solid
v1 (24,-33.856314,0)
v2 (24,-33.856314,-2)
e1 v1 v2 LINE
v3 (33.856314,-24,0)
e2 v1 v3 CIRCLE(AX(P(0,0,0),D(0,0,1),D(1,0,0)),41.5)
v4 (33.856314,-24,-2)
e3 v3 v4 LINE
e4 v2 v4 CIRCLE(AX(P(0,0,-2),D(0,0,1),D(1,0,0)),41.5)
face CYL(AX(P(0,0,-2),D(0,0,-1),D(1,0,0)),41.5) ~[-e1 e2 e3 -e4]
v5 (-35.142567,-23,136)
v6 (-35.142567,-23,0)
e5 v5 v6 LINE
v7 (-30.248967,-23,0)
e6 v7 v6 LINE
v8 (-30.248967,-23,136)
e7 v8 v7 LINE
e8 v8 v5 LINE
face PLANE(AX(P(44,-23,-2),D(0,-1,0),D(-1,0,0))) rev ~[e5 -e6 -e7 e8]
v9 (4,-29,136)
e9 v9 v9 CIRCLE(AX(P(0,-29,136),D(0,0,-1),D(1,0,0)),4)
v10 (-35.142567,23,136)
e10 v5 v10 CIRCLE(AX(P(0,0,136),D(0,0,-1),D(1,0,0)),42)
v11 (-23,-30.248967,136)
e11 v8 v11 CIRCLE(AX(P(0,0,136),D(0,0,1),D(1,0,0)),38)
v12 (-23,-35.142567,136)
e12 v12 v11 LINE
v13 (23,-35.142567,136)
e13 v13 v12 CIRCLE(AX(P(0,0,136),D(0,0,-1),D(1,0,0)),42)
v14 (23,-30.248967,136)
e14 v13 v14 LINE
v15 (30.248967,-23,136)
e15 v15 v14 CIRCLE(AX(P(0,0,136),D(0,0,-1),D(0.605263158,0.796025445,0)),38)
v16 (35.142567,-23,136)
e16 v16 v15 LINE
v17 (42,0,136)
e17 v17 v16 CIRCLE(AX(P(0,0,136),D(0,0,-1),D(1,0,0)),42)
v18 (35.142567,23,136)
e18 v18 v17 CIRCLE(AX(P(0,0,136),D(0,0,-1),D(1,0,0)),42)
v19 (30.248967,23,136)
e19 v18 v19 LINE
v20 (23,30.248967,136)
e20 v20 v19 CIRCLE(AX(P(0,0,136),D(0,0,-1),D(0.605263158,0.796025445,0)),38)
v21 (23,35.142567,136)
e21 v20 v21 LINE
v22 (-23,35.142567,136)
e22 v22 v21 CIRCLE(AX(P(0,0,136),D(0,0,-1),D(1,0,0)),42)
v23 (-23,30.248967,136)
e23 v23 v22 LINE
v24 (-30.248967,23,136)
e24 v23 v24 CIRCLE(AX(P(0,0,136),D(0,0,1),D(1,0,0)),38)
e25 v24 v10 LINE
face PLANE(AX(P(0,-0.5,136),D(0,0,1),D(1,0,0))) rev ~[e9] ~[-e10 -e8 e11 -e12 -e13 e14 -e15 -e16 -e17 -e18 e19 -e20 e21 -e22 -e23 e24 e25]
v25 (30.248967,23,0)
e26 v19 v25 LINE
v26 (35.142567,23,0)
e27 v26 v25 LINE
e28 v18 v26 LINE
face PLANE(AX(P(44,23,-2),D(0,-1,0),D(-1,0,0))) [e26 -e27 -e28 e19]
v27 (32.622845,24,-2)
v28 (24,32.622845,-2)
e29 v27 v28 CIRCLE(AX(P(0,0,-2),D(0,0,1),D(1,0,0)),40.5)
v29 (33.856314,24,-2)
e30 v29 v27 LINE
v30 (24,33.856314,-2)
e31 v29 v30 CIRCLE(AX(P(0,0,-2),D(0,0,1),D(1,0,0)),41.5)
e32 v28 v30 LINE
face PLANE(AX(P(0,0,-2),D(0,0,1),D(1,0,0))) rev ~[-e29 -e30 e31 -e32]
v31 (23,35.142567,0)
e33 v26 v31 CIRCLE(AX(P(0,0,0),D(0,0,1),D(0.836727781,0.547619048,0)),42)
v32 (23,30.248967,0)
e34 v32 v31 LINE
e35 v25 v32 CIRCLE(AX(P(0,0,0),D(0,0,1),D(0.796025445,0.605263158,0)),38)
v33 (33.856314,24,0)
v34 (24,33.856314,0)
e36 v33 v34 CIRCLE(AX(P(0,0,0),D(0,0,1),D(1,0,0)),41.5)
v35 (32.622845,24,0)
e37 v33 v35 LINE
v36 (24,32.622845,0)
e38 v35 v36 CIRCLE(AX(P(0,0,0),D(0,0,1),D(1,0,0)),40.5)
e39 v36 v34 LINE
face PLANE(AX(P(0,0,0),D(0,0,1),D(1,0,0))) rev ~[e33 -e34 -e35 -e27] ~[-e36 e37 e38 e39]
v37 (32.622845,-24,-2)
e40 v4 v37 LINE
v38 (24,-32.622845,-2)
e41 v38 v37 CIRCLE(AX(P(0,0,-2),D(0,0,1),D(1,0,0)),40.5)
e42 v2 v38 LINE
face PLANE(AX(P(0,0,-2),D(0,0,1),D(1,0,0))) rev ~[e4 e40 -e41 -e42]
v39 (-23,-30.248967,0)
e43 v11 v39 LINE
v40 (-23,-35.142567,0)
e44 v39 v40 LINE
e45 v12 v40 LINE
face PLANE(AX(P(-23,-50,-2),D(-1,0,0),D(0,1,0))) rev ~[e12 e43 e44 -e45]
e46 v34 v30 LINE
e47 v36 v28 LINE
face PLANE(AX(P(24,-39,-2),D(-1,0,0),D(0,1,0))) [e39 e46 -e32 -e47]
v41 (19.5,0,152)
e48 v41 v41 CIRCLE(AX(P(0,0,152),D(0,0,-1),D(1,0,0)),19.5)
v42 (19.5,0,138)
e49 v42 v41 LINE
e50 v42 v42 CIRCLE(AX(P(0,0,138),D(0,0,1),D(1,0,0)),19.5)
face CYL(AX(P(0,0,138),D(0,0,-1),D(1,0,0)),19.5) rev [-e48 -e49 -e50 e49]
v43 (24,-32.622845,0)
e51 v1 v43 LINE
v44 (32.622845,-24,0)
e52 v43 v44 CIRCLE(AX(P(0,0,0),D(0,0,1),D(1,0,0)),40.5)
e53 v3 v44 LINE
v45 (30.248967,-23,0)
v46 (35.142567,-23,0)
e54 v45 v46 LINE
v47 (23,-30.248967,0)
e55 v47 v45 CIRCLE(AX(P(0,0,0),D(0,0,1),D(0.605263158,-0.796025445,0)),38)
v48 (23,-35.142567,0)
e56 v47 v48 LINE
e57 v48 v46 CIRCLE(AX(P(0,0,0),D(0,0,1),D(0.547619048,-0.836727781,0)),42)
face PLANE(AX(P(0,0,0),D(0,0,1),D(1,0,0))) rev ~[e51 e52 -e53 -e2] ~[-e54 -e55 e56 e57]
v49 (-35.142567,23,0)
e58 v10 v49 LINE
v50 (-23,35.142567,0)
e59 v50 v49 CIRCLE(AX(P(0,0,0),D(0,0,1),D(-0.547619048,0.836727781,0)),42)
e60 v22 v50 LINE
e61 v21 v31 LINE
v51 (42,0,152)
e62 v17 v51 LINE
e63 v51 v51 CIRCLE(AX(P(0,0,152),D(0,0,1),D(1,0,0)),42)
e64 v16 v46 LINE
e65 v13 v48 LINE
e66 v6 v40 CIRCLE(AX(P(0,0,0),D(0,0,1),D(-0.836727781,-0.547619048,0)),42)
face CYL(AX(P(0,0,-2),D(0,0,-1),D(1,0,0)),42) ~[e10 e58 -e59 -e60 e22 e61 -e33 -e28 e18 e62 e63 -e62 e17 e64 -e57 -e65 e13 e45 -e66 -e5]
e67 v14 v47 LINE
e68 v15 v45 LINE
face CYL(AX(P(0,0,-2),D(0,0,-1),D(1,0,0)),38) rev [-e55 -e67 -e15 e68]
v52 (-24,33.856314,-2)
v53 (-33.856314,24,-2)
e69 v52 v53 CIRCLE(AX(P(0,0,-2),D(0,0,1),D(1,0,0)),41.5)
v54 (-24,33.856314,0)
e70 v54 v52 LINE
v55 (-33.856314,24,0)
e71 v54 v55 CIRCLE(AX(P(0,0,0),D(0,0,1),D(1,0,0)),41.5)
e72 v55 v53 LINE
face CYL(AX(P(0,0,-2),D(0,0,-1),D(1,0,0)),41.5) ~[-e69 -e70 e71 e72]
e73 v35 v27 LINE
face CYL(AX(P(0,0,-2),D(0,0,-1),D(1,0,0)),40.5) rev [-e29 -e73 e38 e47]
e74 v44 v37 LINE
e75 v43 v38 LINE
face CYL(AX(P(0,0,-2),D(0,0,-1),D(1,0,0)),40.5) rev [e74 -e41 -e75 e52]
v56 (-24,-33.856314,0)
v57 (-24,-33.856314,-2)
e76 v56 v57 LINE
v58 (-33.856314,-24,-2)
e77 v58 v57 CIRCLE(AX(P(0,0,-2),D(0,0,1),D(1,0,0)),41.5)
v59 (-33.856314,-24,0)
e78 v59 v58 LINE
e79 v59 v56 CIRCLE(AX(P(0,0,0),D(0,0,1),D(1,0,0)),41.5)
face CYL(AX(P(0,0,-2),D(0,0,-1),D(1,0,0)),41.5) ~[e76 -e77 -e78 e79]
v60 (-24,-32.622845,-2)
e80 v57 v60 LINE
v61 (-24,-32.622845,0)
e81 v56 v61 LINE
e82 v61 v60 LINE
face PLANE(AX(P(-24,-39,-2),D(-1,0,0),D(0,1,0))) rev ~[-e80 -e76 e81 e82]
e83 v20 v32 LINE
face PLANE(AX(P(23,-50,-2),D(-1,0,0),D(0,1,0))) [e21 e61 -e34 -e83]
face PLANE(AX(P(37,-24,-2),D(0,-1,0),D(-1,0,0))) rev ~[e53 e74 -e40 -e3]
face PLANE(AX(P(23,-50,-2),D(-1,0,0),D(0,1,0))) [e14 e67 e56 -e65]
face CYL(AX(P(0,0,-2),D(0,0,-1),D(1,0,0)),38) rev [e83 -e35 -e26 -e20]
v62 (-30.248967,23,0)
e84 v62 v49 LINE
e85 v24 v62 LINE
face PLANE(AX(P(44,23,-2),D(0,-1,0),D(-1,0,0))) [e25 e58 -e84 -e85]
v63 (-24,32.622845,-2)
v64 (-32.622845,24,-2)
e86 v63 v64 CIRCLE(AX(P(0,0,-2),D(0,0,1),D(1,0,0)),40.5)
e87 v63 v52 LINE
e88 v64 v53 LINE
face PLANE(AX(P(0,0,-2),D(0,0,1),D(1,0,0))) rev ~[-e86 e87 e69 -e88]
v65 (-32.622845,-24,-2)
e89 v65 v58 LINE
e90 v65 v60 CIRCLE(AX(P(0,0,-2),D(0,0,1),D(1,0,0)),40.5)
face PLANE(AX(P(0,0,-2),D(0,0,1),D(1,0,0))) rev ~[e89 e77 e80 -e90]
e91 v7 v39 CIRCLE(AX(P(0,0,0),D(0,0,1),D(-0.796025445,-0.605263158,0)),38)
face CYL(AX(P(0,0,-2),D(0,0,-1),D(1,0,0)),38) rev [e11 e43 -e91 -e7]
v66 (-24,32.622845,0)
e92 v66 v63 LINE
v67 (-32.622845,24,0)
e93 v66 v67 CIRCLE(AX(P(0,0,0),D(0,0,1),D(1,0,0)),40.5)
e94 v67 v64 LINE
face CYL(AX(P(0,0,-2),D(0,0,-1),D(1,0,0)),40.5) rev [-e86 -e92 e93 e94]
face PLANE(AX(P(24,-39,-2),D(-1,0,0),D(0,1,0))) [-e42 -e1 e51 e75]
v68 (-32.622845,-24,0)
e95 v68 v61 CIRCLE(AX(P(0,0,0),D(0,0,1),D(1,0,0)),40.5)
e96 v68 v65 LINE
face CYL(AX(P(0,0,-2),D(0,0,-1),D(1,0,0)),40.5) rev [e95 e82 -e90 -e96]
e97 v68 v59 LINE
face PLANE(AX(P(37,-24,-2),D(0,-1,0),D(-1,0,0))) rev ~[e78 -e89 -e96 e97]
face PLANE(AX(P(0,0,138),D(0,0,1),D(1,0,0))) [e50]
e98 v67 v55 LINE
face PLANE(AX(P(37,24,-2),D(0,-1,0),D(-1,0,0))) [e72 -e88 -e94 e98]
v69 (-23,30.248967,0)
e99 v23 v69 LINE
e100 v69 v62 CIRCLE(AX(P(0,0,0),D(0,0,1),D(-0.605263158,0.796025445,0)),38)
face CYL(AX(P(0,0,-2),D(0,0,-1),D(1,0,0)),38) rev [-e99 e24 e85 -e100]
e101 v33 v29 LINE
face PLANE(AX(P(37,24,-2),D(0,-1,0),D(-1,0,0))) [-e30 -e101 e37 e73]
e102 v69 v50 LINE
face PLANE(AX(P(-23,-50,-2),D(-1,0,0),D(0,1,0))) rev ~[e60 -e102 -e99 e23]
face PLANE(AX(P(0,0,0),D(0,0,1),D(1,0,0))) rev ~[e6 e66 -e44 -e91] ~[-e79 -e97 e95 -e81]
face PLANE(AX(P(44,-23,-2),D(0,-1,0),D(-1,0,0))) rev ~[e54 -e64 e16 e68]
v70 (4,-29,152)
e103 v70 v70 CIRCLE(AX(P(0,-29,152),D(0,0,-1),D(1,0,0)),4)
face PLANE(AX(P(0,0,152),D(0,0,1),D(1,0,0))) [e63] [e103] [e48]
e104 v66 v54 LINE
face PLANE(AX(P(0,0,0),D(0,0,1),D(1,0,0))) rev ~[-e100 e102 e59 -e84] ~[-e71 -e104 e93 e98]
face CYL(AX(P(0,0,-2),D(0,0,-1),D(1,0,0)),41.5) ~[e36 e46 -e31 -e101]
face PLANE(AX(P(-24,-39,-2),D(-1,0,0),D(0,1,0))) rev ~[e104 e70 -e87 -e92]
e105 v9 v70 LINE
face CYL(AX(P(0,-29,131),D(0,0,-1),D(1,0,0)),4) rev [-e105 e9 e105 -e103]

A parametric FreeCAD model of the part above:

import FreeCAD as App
import Part
import Sketcher
from FreeCAD import Vector
Q = App.Units.Quantity


def add_polygon(sketch, points):
    """Adds a closed chain of lines whose ends are joined by coincident constraints."""
    first, n = sketch.GeometryCount, len(points)
    for a, b in zip(points, points[1:] + points[:1]):
        sketch.addGeometry(Part.LineSegment(App.Vector(*a, 0), App.Vector(*b, 0)), False)
    for i in range(n):
        sketch.addConstraint(Sketcher.Constraint("Coincident", first + i, 2, first + (i + 1) % n, 1))

doc = App.newDocument("Part")
body = doc.addObject("PartDesign::Body", "Body")

# Sketch on XY plane
sketch1 = doc.addObject("Sketcher::SketchObject", "Sketch")
body.addObject(sketch1)
sketch1.AttachmentSupport = (doc.XY_Plane, [""])
sketch1.MapMode = "FlatFace"
sketch1.AttachmentOffset = App.Placement(Vector(0, 0, -2), App.Rotation())
add_polygon(sketch1, [(-41, -24), (37, -24), (37, 24), (-41, 24)])  # lines 0-3
sketch1.addConstraint(Sketcher.Constraint("Horizontal", 0))
sketch1.addConstraint(Sketcher.Constraint("Vertical", 1))
sketch1.addConstraint(Sketcher.Constraint("Horizontal", 2))
sketch1.addConstraint(Sketcher.Constraint("Vertical", 3))
sketch1.addConstraint(Sketcher.Constraint("DistanceX", 0, 1, 0, 2, Q("78 mm")))
sketch1.addConstraint(Sketcher.Constraint("DistanceY", 1, 1, 1, 2, Q("48 mm")))
sketch1.addConstraint(Sketcher.Constraint("DistanceX", -1, 1, 0, 2, Q("37 mm")))
sketch1.addConstraint(Sketcher.Constraint("DistanceY", 0, 2, -1, 1, Q("24 mm")))
pad1 = doc.addObject("PartDesign::Pad", "Pad")
body.addObject(pad1)
pad1.Profile = sketch1
pad1.Length = 2
body2 = doc.addObject("PartDesign::Body", "Body001")

# Sketch on XY plane
sketch2 = doc.addObject("Sketcher::SketchObject", "Sketch001")
body2.addObject(sketch2)
sketch2.AttachmentSupport = (doc.getObject("XY_Plane001"), [""])
sketch2.MapMode = "FlatFace"
sketch2.AttachmentOffset = App.Placement(Vector(0, 0, -2), App.Rotation())
add_polygon(sketch2, [(-24, 39), (-24, -39), (24, -39), (24, 39)])  # lines 0-3
sketch2.addConstraint(Sketcher.Constraint("Vertical", 0))
sketch2.addConstraint(Sketcher.Constraint("Horizontal", 1))
sketch2.addConstraint(Sketcher.Constraint("Vertical", 2))
sketch2.addConstraint(Sketcher.Constraint("Horizontal", 3))
sketch2.addConstraint(Sketcher.Constraint("Symmetric", 0, 2, 2, 2, -1, 1))
sketch2.addConstraint(Sketcher.Constraint("DistanceX", 1, 1, 1, 2, Q("48 mm")))
sketch2.addConstraint(Sketcher.Constraint("DistanceY", 0, 2, 0, 1, Q("78 mm")))
pad2 = doc.addObject("PartDesign::Pad", "Pad001")
body2.addObject(pad2)
pad2.Profile = sketch2
pad2.Length = 2
body3 = doc.addObject("PartDesign::Body", "Body002")

# Sketch on XY plane
sketch3 = doc.addObject("Sketcher::SketchObject", "Sketch002")
body3.addObject(sketch3)
sketch3.AttachmentSupport = (doc.getObject("XY_Plane002"), [""])
sketch3.MapMode = "FlatFace"
sketch3.AttachmentOffset = App.Placement(Vector(0, 0, -2), App.Rotation())
sketch3.addGeometry(Part.Circle(Vector(0, 0, 0), Vector(0, 0, 1), 42), False)
sketch3.addConstraint(Sketcher.Constraint("Coincident", 0, 3, -1, 1))
sketch3.addConstraint(Sketcher.Constraint("Diameter", 0, Q("83 mm")))
pad3 = doc.addObject("PartDesign::Pad", "Pad002")
body3.addObject(pad3)
pad3.Profile = sketch3
pad3.Length = 2
body4 = doc.addObject("PartDesign::Body", "Body003")

# Sketch on XY plane
sketch4 = doc.addObject("Sketcher::SketchObject", "Sketch003")
body4.addObject(sketch4)
sketch4.AttachmentSupport = (doc.getObject("XY_Plane003"), [""])
sketch4.MapMode = "FlatFace"
sketch4.AttachmentOffset = App.Placement(Vector(0, 0, -2), App.Rotation())
sketch4.addGeometry(Part.Circle(Vector(0, 0, 0), Vector(0, 0, 1), 42), False)
sketch4.addConstraint(Sketcher.Constraint("Coincident", 0, 3, -1, 1))
sketch4.addConstraint(Sketcher.Constraint("Diameter", 0, Q("84 mm")))
pad4 = doc.addObject("PartDesign::Pad", "Pad003")
body4.addObject(pad4)
pad4.Profile = sketch4
pad4.Length = 2
doc.recompute()

boolean = doc.addObject("PartDesign::Boolean", "Boolean")
body4.addObject(boolean)
boolean.Type = "Cut"
boolean.addObjects([body3])
body5 = doc.addObject("PartDesign::Body", "Body004")

# Sketch on XY plane
sketch5 = doc.addObject("Sketcher::SketchObject", "Sketch004")
body5.addObject(sketch5)
sketch5.AttachmentSupport = (doc.getObject("XY_Plane004"), [""])
sketch5.MapMode = "FlatFace"
sketch5.AttachmentOffset = App.Placement(Vector(0, 0, -2), App.Rotation())
sketch5.addGeometry(Part.Circle(Vector(0, 0, 0), Vector(0, 0, 1), 40), False)
sketch5.addConstraint(Sketcher.Constraint("Coincident", 0, 3, -1, 1))
sketch5.addConstraint(Sketcher.Constraint("Diameter", 0, Q("81 mm")))
pad5 = doc.addObject("PartDesign::Pad", "Pad004")
body5.addObject(pad5)
pad5.Profile = sketch5
pad5.Length = 2
body6 = doc.addObject("PartDesign::Body", "Body005")

# Sketch on XY plane
sketch6 = doc.addObject("Sketcher::SketchObject", "Sketch005")
body6.addObject(sketch6)
sketch6.AttachmentSupport = (doc.getObject("XY_Plane005"), [""])
sketch6.MapMode = "FlatFace"
sketch6.AttachmentOffset = App.Placement(Vector(0, 0, 131), App.Rotation())
sketch6.addGeometry(Part.Circle(Vector(0, -29, 0), Vector(0, 0, 1), 4), False)
sketch6.addConstraint(Sketcher.Constraint("PointOnObject", 0, 3, -2))
sketch6.addConstraint(Sketcher.Constraint("Diameter", 0, Q("8 mm")))
sketch6.addConstraint(Sketcher.Constraint("DistanceY", 0, 3, -1, 1, Q("29 mm")))
pad6 = doc.addObject("PartDesign::Pad", "Pad005")
body6.addObject(pad6)
pad6.Profile = sketch6
pad6.Length = 26
body7 = doc.addObject("PartDesign::Body", "Body006")

# Sketch on XY plane
sketch7 = doc.addObject("Sketcher::SketchObject", "Sketch006")
body7.addObject(sketch7)
sketch7.AttachmentSupport = (doc.getObject("XY_Plane006"), [""])
sketch7.MapMode = "FlatFace"
sketch7.AttachmentOffset = App.Placement(Vector(0, 0, -2), App.Rotation())
add_polygon(sketch7, [(-55, -23), (44, -23), (44, 23), (-55, 23)])  # lines 0-3
sketch7.addConstraint(Sketcher.Constraint("Horizontal", 0))
sketch7.addConstraint(Sketcher.Constraint("Vertical", 1))
sketch7.addConstraint(Sketcher.Constraint("Horizontal", 2))
sketch7.addConstraint(Sketcher.Constraint("Vertical", 3))
sketch7.addConstraint(Sketcher.Constraint("DistanceX", 0, 1, 0, 2, Q("99 mm")))
sketch7.addConstraint(Sketcher.Constraint("DistanceY", 1, 1, 1, 2, Q("46 mm")))
sketch7.addConstraint(Sketcher.Constraint("DistanceX", -1, 1, 0, 2, Q("44 mm")))
sketch7.addConstraint(Sketcher.Constraint("DistanceY", 0, 2, -1, 1, Q("23 mm")))
pad7 = doc.addObject("PartDesign::Pad", "Pad006")
body7.addObject(pad7)
pad7.Profile = sketch7
pad7.Length = 138
body8 = doc.addObject("PartDesign::Body", "Body007")

# Sketch on XY plane
sketch8 = doc.addObject("Sketcher::SketchObject", "Sketch007")
body8.addObject(sketch8)
sketch8.AttachmentSupport = (doc.getObject("XY_Plane007"), [""])
sketch8.MapMode = "FlatFace"
sketch8.AttachmentOffset = App.Placement(Vector(0, 0, -2), App.Rotation())
add_polygon(sketch8, [(-23, 49), (-23, -50), (23, -50), (23, 49)])  # lines 0-3
sketch8.addConstraint(Sketcher.Constraint("Vertical", 0))
sketch8.addConstraint(Sketcher.Constraint("Horizontal", 1))
sketch8.addConstraint(Sketcher.Constraint("Vertical", 2))
sketch8.addConstraint(Sketcher.Constraint("Horizontal", 3))
sketch8.addConstraint(Sketcher.Constraint("DistanceX", 1, 1, 1, 2, Q("46 mm")))
sketch8.addConstraint(Sketcher.Constraint("DistanceY", 0, 2, 0, 1, Q("99 mm")))
sketch8.addConstraint(Sketcher.Constraint("DistanceX", 0, 2, -1, 1, Q("23 mm")))
sketch8.addConstraint(Sketcher.Constraint("DistanceY", 0, 2, -1, 1, Q("50 mm")))
pad8 = doc.addObject("PartDesign::Pad", "Pad007")
body8.addObject(pad8)
pad8.Profile = sketch8
pad8.Length = 138
body9 = doc.addObject("PartDesign::Body", "Body008")

# Sketch on XY plane
sketch9 = doc.addObject("Sketcher::SketchObject", "Sketch008")
body9.addObject(sketch9)
sketch9.AttachmentSupport = (doc.getObject("XY_Plane008"), [""])
sketch9.MapMode = "FlatFace"
sketch9.AttachmentOffset = App.Placement(Vector(0, 0, -2), App.Rotation())
sketch9.addGeometry(Part.Circle(Vector(0, 0, 0), Vector(0, 0, 1), 38), False)
sketch9.addConstraint(Sketcher.Constraint("Coincident", 0, 3, -1, 1))
sketch9.addConstraint(Sketcher.Constraint("Diameter", 0, Q("76 mm")))
pad9 = doc.addObject("PartDesign::Pad", "Pad008")
body9.addObject(pad9)
pad9.Profile = sketch9
pad9.Length = 138
body10 = doc.addObject("PartDesign::Body", "Body009")

# Sketch on XY plane
sketch10 = doc.addObject("Sketcher::SketchObject", "Sketch009")
body10.addObject(sketch10)
sketch10.AttachmentSupport = (doc.getObject("XY_Plane009"), [""])
sketch10.MapMode = "FlatFace"
sketch10.AttachmentOffset = App.Placement(Vector(0, 0, 138), App.Rotation())
sketch10.addGeometry(Part.Circle(Vector(0, 0, 0), Vector(0, 0, 1), 20), False)
sketch10.addConstraint(Sketcher.Constraint("Coincident", 0, 3, -1, 1))
sketch10.addConstraint(Sketcher.Constraint("Diameter", 0, Q("39 mm")))
pad10 = doc.addObject("PartDesign::Pad", "Pad009")
body10.addObject(pad10)
pad10.Profile = sketch10
pad10.Length = 15
body11 = doc.addObject("PartDesign::Body", "Body010")

# Sketch on XY plane
sketch11 = doc.addObject("Sketcher::SketchObject", "Sketch010")
body11.addObject(sketch11)
sketch11.AttachmentSupport = (doc.getObject("XY_Plane010"), [""])
sketch11.MapMode = "FlatFace"
sketch11.AttachmentOffset = App.Placement(Vector(0, 0, -2), App.Rotation())
sketch11.addGeometry(Part.Circle(Vector(0, 0, 0), Vector(0, 0, 1), 42), False)
sketch11.addConstraint(Sketcher.Constraint("Coincident", 0, 3, -1, 1))
sketch11.addConstraint(Sketcher.Constraint("Diameter", 0, Q("84 mm")))
pad11 = doc.addObject("PartDesign::Pad", "Pad010")
body11.addObject(pad11)
pad11.Profile = sketch11
pad11.Length = 154
doc.recompute()

boolean2 = doc.addObject("PartDesign::Boolean", "Boolean001")
body11.addObject(boolean2)
boolean2.Type = "Cut"
boolean2.addObjects([body10])
doc.recompute()

boolean3 = doc.addObject("PartDesign::Boolean", "Boolean002")
body11.addObject(boolean3)
boolean3.Type = "Cut"
boolean3.addObjects([body9])
doc.recompute()

boolean4 = doc.addObject("PartDesign::Boolean", "Boolean003")
body11.addObject(boolean4)
boolean4.Type = "Cut"
boolean4.addObjects([body8])
doc.recompute()

boolean5 = doc.addObject("PartDesign::Boolean", "Boolean004")
body11.addObject(boolean5)
boolean5.Type = "Cut"
boolean5.addObjects([body7])
doc.recompute()

boolean6 = doc.addObject("PartDesign::Boolean", "Boolean005")
body11.addObject(boolean6)
boolean6.Type = "Cut"
boolean6.addObjects([body6])
doc.recompute()

boolean7 = doc.addObject("PartDesign::Boolean", "Boolean006")
body11.addObject(boolean7)
boolean7.Type = "Cut"
boolean7.addObjects([body5])
doc.recompute()

boolean8 = doc.addObject("PartDesign::Boolean", "Boolean007")
body11.addObject(boolean8)
boolean8.Type = "Cut"
boolean8.addObjects([body4])
doc.recompute()

boolean9 = doc.addObject("PartDesign::Boolean", "Boolean008")
body11.addObject(boolean9)
boolean9.Type = "Cut"
boolean9.addObjects([body2])
doc.recompute()

boolean10 = doc.addObject("PartDesign::Boolean", "Boolean009")
body11.addObject(boolean10)
boolean10.Type = "Cut"
boolean10.addObjects([body])

doc.recompute()
